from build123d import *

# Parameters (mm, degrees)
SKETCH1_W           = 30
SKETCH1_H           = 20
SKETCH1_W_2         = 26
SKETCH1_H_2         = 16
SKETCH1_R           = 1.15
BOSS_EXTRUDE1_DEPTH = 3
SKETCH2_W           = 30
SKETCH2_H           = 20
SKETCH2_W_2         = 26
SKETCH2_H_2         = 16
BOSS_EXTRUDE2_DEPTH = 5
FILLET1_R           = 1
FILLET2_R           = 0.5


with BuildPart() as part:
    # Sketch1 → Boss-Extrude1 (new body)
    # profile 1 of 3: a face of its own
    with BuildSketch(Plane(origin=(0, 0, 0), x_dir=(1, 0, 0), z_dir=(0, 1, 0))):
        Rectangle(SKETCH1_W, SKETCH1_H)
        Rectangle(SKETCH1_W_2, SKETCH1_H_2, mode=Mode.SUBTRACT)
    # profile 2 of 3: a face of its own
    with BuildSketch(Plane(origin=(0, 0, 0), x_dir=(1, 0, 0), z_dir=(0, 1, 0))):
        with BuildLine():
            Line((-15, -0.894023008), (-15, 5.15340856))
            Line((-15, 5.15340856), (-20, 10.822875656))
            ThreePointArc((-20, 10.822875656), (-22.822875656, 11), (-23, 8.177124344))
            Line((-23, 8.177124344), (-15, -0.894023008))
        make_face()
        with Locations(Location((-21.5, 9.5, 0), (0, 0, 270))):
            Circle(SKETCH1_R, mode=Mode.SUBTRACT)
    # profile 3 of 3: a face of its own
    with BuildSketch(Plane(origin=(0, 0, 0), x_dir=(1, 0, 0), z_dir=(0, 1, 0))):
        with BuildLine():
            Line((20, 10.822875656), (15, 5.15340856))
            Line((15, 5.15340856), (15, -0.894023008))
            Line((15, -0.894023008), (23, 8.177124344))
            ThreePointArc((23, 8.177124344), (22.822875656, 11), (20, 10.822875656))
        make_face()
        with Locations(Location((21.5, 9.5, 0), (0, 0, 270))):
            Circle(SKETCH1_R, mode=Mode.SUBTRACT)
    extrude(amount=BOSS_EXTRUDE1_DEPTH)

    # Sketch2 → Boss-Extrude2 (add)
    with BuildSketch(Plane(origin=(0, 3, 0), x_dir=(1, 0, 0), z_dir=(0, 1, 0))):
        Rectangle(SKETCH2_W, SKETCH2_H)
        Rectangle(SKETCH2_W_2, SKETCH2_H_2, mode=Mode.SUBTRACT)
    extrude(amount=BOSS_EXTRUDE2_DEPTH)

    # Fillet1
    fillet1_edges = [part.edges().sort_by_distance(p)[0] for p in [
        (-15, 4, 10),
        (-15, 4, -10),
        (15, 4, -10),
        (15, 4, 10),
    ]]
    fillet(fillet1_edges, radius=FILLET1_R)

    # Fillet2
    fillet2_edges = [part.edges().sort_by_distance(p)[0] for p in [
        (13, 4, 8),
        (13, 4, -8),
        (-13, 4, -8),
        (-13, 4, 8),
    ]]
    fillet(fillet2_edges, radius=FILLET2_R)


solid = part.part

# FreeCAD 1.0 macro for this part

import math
import FreeCAD as App
import Part
import Sketcher
Q = App.Units.Quantity


def edges_at(feature, points):
    """Names of the edges that pass closest to the given points."""
    edges = feature.Shape.Edges
    near = lambda p: min(range(len(edges)), key=lambda i: edges[i].distToShape(Part.Vertex(*p))[0])
    return sorted({f"Edge{near(p) + 1}" for p in points})


def add_polygon(sketch, points):
    """Adds a closed chain of lines whose ends are joined by coincident constraints."""
    first, n = sketch.GeometryCount, len(points)
    for a, b in zip(points, points[1:] + points[:1]):
        sketch.addGeometry(Part.LineSegment(App.Vector(*a, 0), App.Vector(*b, 0)), False)
    for i in range(n):
        sketch.addConstraint(Sketcher.Constraint("Coincident", first + i, 2, first + (i + 1) % n, 1))

doc = App.newDocument("Part")
params = doc.addObject("Spreadsheet::Sheet", "Params")
for row, (alias, value) in enumerate([
    ("sketch1_radius", "2 mm"),
    ("sketch1_diameter", "2.3 mm"),
    ("sketch1_width", "30 mm"),
    ("sketch1_width2", "26 mm"),
    ("sketch1_height", "16 mm"),
    ("pad1_length", "3 mm"),
    ("sketch2_width", "30 mm"),
    ("sketch2_width2", "26 mm"),
    ("sketch2_height", "20 mm"),
    ("sketch2_height2", "16 mm"),
    ("pad2_length", "5 mm"),
    ("fillet_radius", "1 mm"),
    ("fillet2_radius", "0.5 mm"),
], start=1):
    params.set(f"A{row}", alias)
    params.set(f"B{row}", "=" + value)
    params.setAlias(f"B{row}", alias)

body = doc.addObject("PartDesign::Body", "Body")

# Sketch on XZ plane
sketch1 = body.newObject("Sketcher::SketchObject", "Sketch")
sketch1.AttachmentSupport = (doc.getObject("XZ_Plane"), [""])
sketch1.MapMode = "FlatFace"
sketch1.addGeometry(Part.LineSegment(App.Vector(-15, 0.9, 0), App.Vector(-15, 10, 0)), False)  # 0
sketch1.addGeometry(Part.LineSegment(App.Vector(-15, 10, 0), App.Vector(15, 10, 0)), False)  # 1
sketch1.addGeometry(Part.LineSegment(App.Vector(15, 10, 0), App.Vector(15, 0.9, 0)), False)  # 2
sketch1.addGeometry(Part.LineSegment(App.Vector(15, 0.9, 0), App.Vector(23, -8.2, 0)), False)  # 3
sketch1.addGeometry(Part.ArcOfCircle(Part.Circle(App.Vector(21.5, -9.5, 0), App.Vector(0, 0, 1), 2), math.radians(-139), math.radians(41)), False)  # 4
sketch1.addGeometry(Part.LineSegment(App.Vector(20, -10.8, 0), App.Vector(15, -5.2, 0)), False)  # 5
sketch1.addGeometry(Part.LineSegment(App.Vector(15, -5.2, 0), App.Vector(15, -10, 0)), False)  # 6
sketch1.addGeometry(Part.LineSegment(App.Vector(15, -10, 0), App.Vector(-15, -10, 0)), False)  # 7
sketch1.addGeometry(Part.LineSegment(App.Vector(-15, -10, 0), App.Vector(-15, -5.2, 0)), False)  # 8
sketch1.addGeometry(Part.LineSegment(App.Vector(-15, -5.2, 0), App.Vector(-20, -10.8, 0)), False)  # 9
sketch1.addGeometry(Part.ArcOfCircle(Part.Circle(App.Vector(-21.5, -9.5, 0), App.Vector(0, 0, 1), 2), math.radians(139), math.radians(319)), False)  # 10
sketch1.addGeometry(Part.LineSegment(App.Vector(-23, -8.2, 0), App.Vector(-15, 0.9, 0)), False)  # 11
add_polygon(sketch1, [(13, 8), (-13, 8), (-13, -8), (13, -8)])  # lines 12-15
sketch1.addGeometry(Part.Circle(App.Vector(-21.5, -9.5, 0), App.Vector(0, 0, 1), 1.1), False)  # 16
sketch1.addGeometry(Part.Circle(App.Vector(21.5, -9.5, 0), App.Vector(0, 0, 1), 1.1), False)  # 17
sketch1.addConstraint(Sketcher.Constraint("Coincident", 0, 2, 1, 1))
sketch1.addConstraint(Sketcher.Constraint("Coincident", 1, 2, 2, 1))
sketch1.addConstraint(Sketcher.Constraint("Coincident", 2, 2, 3, 1))
sketch1.addConstraint(Sketcher.Constraint("Tangent", 3, 2, 4, 2))
sketch1.addConstraint(Sketcher.Constraint("Tangent", 4, 1, 5, 1))
sketch1.addConstraint(Sketcher.Constraint("Coincident", 5, 2, 6, 1))
sketch1.addConstraint(Sketcher.Constraint("Coincident", 6, 2, 7, 1))
sketch1.addConstraint(Sketcher.Constraint("Coincident", 7, 2, 8, 1))
sketch1.addConstraint(Sketcher.Constraint("Coincident", 8, 2, 9, 1))
sketch1.addConstraint(Sketcher.Constraint("Tangent", 9, 2, 10, 2))
sketch1.addConstraint(Sketcher.Constraint("Tangent", 10, 1, 11, 1))
sketch1.addConstraint(Sketcher.Constraint("Coincident", 11, 2, 0, 1))
sketch1.addConstraint(Sketcher.Constraint("Vertical", 0))
sketch1.addConstraint(Sketcher.Constraint("Horizontal", 1))
sketch1.addConstraint(Sketcher.Constraint("Vertical", 2))
sketch1.addConstraint(Sketcher.Constraint("Vertical", 6))
sketch1.addConstraint(Sketcher.Constraint("Horizontal", 7))
sketch1.addConstraint(Sketcher.Constraint("Vertical", 8))
sketch1.addConstraint(Sketcher.Constraint("Horizontal", 12))
sketch1.addConstraint(Sketcher.Constraint("Vertical", 13))
sketch1.addConstraint(Sketcher.Constraint("Horizontal", 14))
sketch1.addConstraint(Sketcher.Constraint("Vertical", 15))
sketch1.addConstraint(Sketcher.Constraint("Coincident", 16, 3, 10, 3))
sketch1.addConstraint(Sketcher.Constraint("Coincident", 17, 3, 4, 3))
sketch1.addConstraint(Sketcher.Constraint("Equal", 4, 10))
sketch1.addConstraint(Sketcher.Constraint("Equal", 16, 17))
sketch1.addConstraint(Sketcher.Constraint("Symmetric", 0, 2, 6, 2, -1, 1))
sketch1.addConstraint(Sketcher.Constraint("Symmetric", 12, 2, 14, 2, -1, 1))
sketch1.addConstraint(Sketcher.Constraint("Symmetric", 4, 3, 10, 3, -2))
sketch1.addConstraint(Sketcher.Constraint("Symmetric", 5, 2, 8, 2, -2))
sketch1.addConstraint(Sketcher.Constraint("Symmetric", 2, 2, 11, 2, -2))
sketch1.addConstraint(Sketcher.Constraint("Parallel", 3, 5))
sketch1.addConstraint(Sketcher.Constraint("Radius", 4, Q("2 mm")))
sketch1.addConstraint(Sketcher.Constraint("Diameter", 16, Q("2.3 mm")))
sketch1.addConstraint(Sketcher.Constraint("DistanceX", 1, 1, 1, 2, Q("30 mm")))
sketch1.addConstraint(Sketcher.Constraint("DistanceX", 12, 2, 12, 1, Q("26 mm")))
sketch1.addConstraint(Sketcher.Constraint("DistanceY", 13, 2, 13, 1, Q("16 mm")))
sketch1.addConstraint(Sketcher.Constraint("DistanceY", -1, 1, 0, 2, Q("10 mm")))
sketch1.addConstraint(Sketcher.Constraint("DistanceX", -1, 1, 3, 2, Q("23 mm")))
sketch1.addConstraint(Sketcher.Constraint("DistanceX", -1, 1, 4, 1, Q("20 mm")))
sketch1.addConstraint(Sketcher.Constraint("DistanceY", 4, 3, -1, 1, Q("9.5 mm")))
sketch1.setExpression("Constraints[36]", "Params.sketch1_radius")
sketch1.setExpression("Constraints[37]", "Params.sketch1_diameter")
sketch1.setExpression("Constraints[38]", "Params.sketch1_width")
sketch1.setExpression("Constraints[39]", "Params.sketch1_width2")
sketch1.setExpression("Constraints[40]", "Params.sketch1_height")
pad1 = body.newObject("PartDesign::Pad", "Pad")
pad1.Profile = sketch1
pad1.setExpression("Length", "Params.pad1_length")
pad1.Reversed = True

# Sketch on XZ plane
sketch2 = body.newObject("Sketcher::SketchObject", "Sketch001")
sketch2.AttachmentSupport = (doc.getObject("XZ_Plane"), [""])
sketch2.MapMode = "FlatFace"
sketch2.AttachmentOffset = App.Placement(App.Vector(0, 0, -3), App.Rotation())
add_polygon(sketch2, [(-15, -10), (-15, 10), (15, 10), (15, -10)])  # lines 0-3
add_polygon(sketch2, [(13, 8), (-13, 8), (-13, -8), (13, -8)])  # lines 4-7
sketch2.addConstraint(Sketcher.Constraint("Vertical", 0))
sketch2.addConstraint(Sketcher.Constraint("Horizontal", 1))
sketch2.addConstraint(Sketcher.Constraint("Vertical", 2))
sketch2.addConstraint(Sketcher.Constraint("Horizontal", 3))
sketch2.addConstraint(Sketcher.Constraint("Horizontal", 4))
sketch2.addConstraint(Sketcher.Constraint("Vertical", 5))
sketch2.addConstraint(Sketcher.Constraint("Horizontal", 6))
sketch2.addConstraint(Sketcher.Constraint("Vertical", 7))
sketch2.addConstraint(Sketcher.Constraint("Symmetric", 0, 2, 2, 2, -1, 1))
sketch2.addConstraint(Sketcher.Constraint("Symmetric", 4, 2, 6, 2, -1, 1))
sketch2.addConstraint(Sketcher.Constraint("DistanceX", 1, 1, 1, 2, Q("30 mm")))
sketch2.addConstraint(Sketcher.Constraint("DistanceX", 4, 2, 4, 1, Q("26 mm")))
sketch2.addConstraint(Sketcher.Constraint("DistanceY", 0, 1, 0, 2, Q("20 mm")))
sketch2.addConstraint(Sketcher.Constraint("DistanceY", 5, 2, 5, 1, Q("16 mm")))
sketch2.setExpression("Constraints[18]", "Params.sketch2_width")
sketch2.setExpression("Constraints[19]", "Params.sketch2_width2")
sketch2.setExpression("Constraints[20]", "Params.sketch2_height")
sketch2.setExpression("Constraints[21]", "Params.sketch2_height2")
pad2 = body.newObject("PartDesign::Pad", "Pad001")
pad2.Profile = sketch2
pad2.setExpression("Length", "Params.pad2_length")
pad2.Reversed = True
doc.recompute()

fillet = body.newObject("PartDesign::Fillet", "Fillet")
fillet.Base = (pad2, edges_at(pad2, [
    (-15, 4, 10),
    (-15, 4, -10),
    (15, 4, -10),
    (15, 4, 10),
]))
fillet.setExpression("Radius", "Params.fillet_radius")
doc.recompute()

fillet2 = body.newObject("PartDesign::Fillet", "Fillet001")
fillet2.Base = (fillet, edges_at(fillet, [
    (13, 4, 8),
    (13, 4, -8),
    (-13, 4, -8),
    (-13, 4, 8),
]))
fillet2.setExpression("Radius", "Params.fillet2_radius")

doc.recompute()
